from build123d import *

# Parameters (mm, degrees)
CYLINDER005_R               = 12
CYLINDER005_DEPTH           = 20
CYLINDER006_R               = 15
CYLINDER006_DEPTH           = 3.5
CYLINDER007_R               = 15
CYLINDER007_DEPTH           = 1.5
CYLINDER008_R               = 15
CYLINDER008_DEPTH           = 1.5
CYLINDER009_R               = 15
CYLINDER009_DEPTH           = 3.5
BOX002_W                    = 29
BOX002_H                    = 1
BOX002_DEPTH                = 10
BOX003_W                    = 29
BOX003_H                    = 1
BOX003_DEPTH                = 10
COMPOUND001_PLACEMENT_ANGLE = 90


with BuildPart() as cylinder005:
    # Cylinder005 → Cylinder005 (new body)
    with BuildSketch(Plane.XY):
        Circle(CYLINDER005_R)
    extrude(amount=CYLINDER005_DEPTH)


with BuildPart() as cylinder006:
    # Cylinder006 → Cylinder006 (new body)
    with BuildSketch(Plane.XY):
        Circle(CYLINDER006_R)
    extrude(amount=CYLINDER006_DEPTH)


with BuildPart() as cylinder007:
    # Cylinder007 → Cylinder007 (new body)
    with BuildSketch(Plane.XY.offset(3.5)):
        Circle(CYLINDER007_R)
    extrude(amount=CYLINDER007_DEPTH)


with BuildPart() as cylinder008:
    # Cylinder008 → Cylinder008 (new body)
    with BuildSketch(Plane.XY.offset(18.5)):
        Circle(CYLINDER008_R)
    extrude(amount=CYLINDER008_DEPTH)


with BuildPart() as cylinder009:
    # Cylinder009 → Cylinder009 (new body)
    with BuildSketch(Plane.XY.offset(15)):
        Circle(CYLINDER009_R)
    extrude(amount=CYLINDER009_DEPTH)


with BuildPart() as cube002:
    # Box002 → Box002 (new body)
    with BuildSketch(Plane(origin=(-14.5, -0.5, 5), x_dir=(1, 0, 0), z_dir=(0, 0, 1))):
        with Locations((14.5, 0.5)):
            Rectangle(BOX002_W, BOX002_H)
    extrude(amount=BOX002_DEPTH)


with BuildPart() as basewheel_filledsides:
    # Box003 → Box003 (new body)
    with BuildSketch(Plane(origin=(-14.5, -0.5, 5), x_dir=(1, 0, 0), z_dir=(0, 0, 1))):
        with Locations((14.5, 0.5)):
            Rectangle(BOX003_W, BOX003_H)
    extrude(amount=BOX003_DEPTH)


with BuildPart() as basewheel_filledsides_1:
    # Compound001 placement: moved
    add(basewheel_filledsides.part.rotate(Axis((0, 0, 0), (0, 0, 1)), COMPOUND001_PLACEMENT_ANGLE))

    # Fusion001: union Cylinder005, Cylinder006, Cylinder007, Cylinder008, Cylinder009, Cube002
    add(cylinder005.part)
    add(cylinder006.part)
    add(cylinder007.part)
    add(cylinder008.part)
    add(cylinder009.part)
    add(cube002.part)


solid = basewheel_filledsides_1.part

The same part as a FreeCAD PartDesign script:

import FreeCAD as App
import Part
import Sketcher

doc = App.newDocument("Part")
body = doc.addObject("PartDesign::Body", "Body")

sketch1 = doc.addObject("Sketcher::SketchObject", "Sketch")
body.addObject(sketch1)
sketch1.AttachmentSupport = (doc.XY_Plane, [""])
sketch1.MapMode = "FlatFace"
sketch1.addGeometry(Part.Circle(App.Vector(0, 0, 0), App.Vector(0, 0, 1), 12), False)
sketch1.addConstraint([
    Sketcher.Constraint("Coincident", 0, 3, -1, 1),
    Sketcher.Constraint("Diameter", 0, 24.0),
])
pad1 = doc.addObject("PartDesign::Pad", "Pad")
body.addObject(pad1)
pad1.Profile = sketch1
pad1.Length = 20
body2 = doc.addObject("PartDesign::Body", "Body001")

sketch2 = doc.addObject("Sketcher::SketchObject", "Sketch001")
body2.addObject(sketch2)
sketch2.AttachmentSupport = (doc.getObject("XY_Plane001"), [""])
sketch2.MapMode = "FlatFace"
sketch2.addGeometry(Part.Circle(App.Vector(0, 0, 0), App.Vector(0, 0, 1), 15), False)
sketch2.addConstraint([
    Sketcher.Constraint("Coincident", 0, 3, -1, 1),
    Sketcher.Constraint("Diameter", 0, 30.0),
])
pad2 = doc.addObject("PartDesign::Pad", "Pad001")
body2.addObject(pad2)
pad2.Profile = sketch2
pad2.Length = 3.5
body3 = doc.addObject("PartDesign::Body", "Body002")

sketch3 = doc.addObject("Sketcher::SketchObject", "Sketch002")
body3.addObject(sketch3)
sketch3.AttachmentSupport = (doc.getObject("XY_Plane002"), [""])
sketch3.MapMode = "FlatFace"
sketch3.AttachmentOffset = App.Placement(App.Vector(0, 0, 3.5), App.Rotation())
sketch3.addGeometry(Part.Circle(App.Vector(0, 0, 0), App.Vector(0, 0, 1), 15), False)
sketch3.addConstraint([
    Sketcher.Constraint("Coincident", 0, 3, -1, 1),
    Sketcher.Constraint("Diameter", 0, 30.0),
])
pad3 = doc.addObject("PartDesign::Pad", "Pad002")
body3.addObject(pad3)
pad3.Profile = sketch3
pad3.Length = 1.5
body4 = doc.addObject("PartDesign::Body", "Body003")

sketch4 = doc.addObject("Sketcher::SketchObject", "Sketch003")
body4.addObject(sketch4)
sketch4.AttachmentSupport = (doc.getObject("XY_Plane003"), [""])
sketch4.MapMode = "FlatFace"
sketch4.AttachmentOffset = App.Placement(App.Vector(0, 0, 18.5), App.Rotation())
sketch4.addGeometry(Part.Circle(App.Vector(0, 0, 0), App.Vector(0, 0, 1), 15), False)
sketch4.addConstraint([
    Sketcher.Constraint("Coincident", 0, 3, -1, 1),
    Sketcher.Constraint("Diameter", 0, 30.0),
])
pad4 = doc.addObject("PartDesign::Pad", "Pad003")
body4.addObject(pad4)
pad4.Profile = sketch4
pad4.Length = 1.5
body5 = doc.addObject("PartDesign::Body", "Body004")

sketch5 = doc.addObject("Sketcher::SketchObject", "Sketch004")
body5.addObject(sketch5)
sketch5.AttachmentSupport = (doc.getObject("XY_Plane004"), [""])
sketch5.MapMode = "FlatFace"
sketch5.AttachmentOffset = App.Placement(App.Vector(0, 0, 15), App.Rotation())
sketch5.addGeometry(Part.Circle(App.Vector(0, 0, 0), App.Vector(0, 0, 1), 15), False)
sketch5.addConstraint([
    Sketcher.Constraint("Coincident", 0, 3, -1, 1),
    Sketcher.Constraint("Diameter", 0, 30.0),
])
pad5 = doc.addObject("PartDesign::Pad", "Pad004")
body5.addObject(pad5)
pad5.Profile = sketch5
pad5.Length = 3.5
body6 = doc.addObject("PartDesign::Body", "Body005")

sketch6 = doc.addObject("Sketcher::SketchObject", "Sketch005")
body6.addObject(sketch6)
sketch6.AttachmentSupport = (doc.getObject("XY_Plane005"), [""])
sketch6.MapMode = "FlatFace"
sketch6.AttachmentOffset = App.Placement(App.Vector(0, 0, 5), App.Rotation())
sketch6.addGeometry([
    Part.LineSegment(App.Vector(-14.5, 0.5, 0), App.Vector(-14.5, -0.5, 0)),
    Part.LineSegment(App.Vector(-14.5, -0.5, 0), App.Vector(14.5, -0.5, 0)),
    Part.LineSegment(App.Vector(14.5, -0.5, 0), App.Vector(14.5, 0.5, 0)),
    Part.LineSegment(App.Vector(14.5, 0.5, 0), App.Vector(-14.5, 0.5, 0)),
], False)
sketch6.addConstraint([
    Sketcher.Constraint("Coincident", 0, 2, 1, 1),
    Sketcher.Constraint("Coincident", 1, 2, 2, 1),
    Sketcher.Constraint("Coincident", 2, 2, 3, 1),
    Sketcher.Constraint("Coincident", 3, 2, 0, 1),
    Sketcher.Constraint("Vertical", 0),
    Sketcher.Constraint("Horizontal", 1),
    Sketcher.Constraint("Vertical", 2),
    Sketcher.Constraint("Horizontal", 3),
    Sketcher.Constraint("Symmetric", 0, 2, 2, 2, -1, 1),
    Sketcher.Constraint("DistanceX", 1, 1, 1, 2, 29.0),
    Sketcher.Constraint("DistanceY", 0, 2, 0, 1, 1.0),
])
pad6 = doc.addObject("PartDesign::Pad", "Pad005")
body6.addObject(pad6)
pad6.Profile = sketch6
pad6.Length = 10
body7 = doc.addObject("PartDesign::Body", "Body006")

sketch7 = doc.addObject("Sketcher::SketchObject", "Sketch006")
body7.addObject(sketch7)
sketch7.AttachmentSupport = (doc.getObject("XY_Plane006"), [""])
sketch7.MapMode = "FlatFace"
sketch7.AttachmentOffset = App.Placement(App.Vector(0, 0, 5), App.Rotation())
sketch7.addGeometry([
    Part.LineSegment(App.Vector(-14.5, 0.5, 0), App.Vector(-14.5, -0.5, 0)),
    Part.LineSegment(App.Vector(-14.5, -0.5, 0), App.Vector(14.5, -0.5, 0)),
    Part.LineSegment(App.Vector(14.5, -0.5, 0), App.Vector(14.5, 0.5, 0)),
    Part.LineSegment(App.Vector(14.5, 0.5, 0), App.Vector(-14.5, 0.5, 0)),
], False)
sketch7.addConstraint([
    Sketcher.Constraint("Coincident", 0, 2, 1, 1),
    Sketcher.Constraint("Coincident", 1, 2, 2, 1),
    Sketcher.Constraint("Coincident", 2, 2, 3, 1),
    Sketcher.Constraint("Coincident", 3, 2, 0, 1),
    Sketcher.Constraint("Vertical", 0),
    Sketcher.Constraint("Horizontal", 1),
    Sketcher.Constraint("Vertical", 2),
    Sketcher.Constraint("Horizontal", 3),
    Sketcher.Constraint("Symmetric", 0, 2, 2, 2, -1, 1),
    Sketcher.Constraint("DistanceX", 1, 1, 1, 2, 29.0),
    Sketcher.Constraint("DistanceY", 0, 2, 0, 1, 1.0),
])
pad7 = doc.addObject("PartDesign::Pad", "Pad006")
body7.addObject(pad7)
pad7.Profile = sketch7
pad7.Length = 10
body8 = doc.addObject("PartDesign::Body", "Body007")
doc.recompute()

body7.Placement = App.Placement(App.Vector(0, 0, 0), App.Rotation(App.Vector(0, 0, 1), 90))
boolean = doc.addObject("PartDesign::Boolean", "Boolean")
body8.addObject(boolean)
boolean.Type = "Fuse"
boolean.addObjects([body7])
doc.recompute()

boolean2 = doc.addObject("PartDesign::Boolean", "Boolean001")
body8.addObject(boolean2)
boolean2.Type = "Fuse"
boolean2.addObjects([body])
doc.recompute()

boolean3 = doc.addObject("PartDesign::Boolean", "Boolean002")
body8.addObject(boolean3)
boolean3.Type = "Fuse"
boolean3.addObjects([body2])
doc.recompute()

boolean4 = doc.addObject("PartDesign::Boolean", "Boolean003")
body8.addObject(boolean4)
boolean4.Type = "Fuse"
boolean4.addObjects([body3])
doc.recompute()

boolean5 = doc.addObject("PartDesign::Boolean", "Boolean004")
body8.addObject(boolean5)
boolean5.Type = "Fuse"
boolean5.addObjects([body4])
doc.recompute()

boolean6 = doc.addObject("PartDesign::Boolean", "Boolean005")
body8.addObject(boolean6)
boolean6.Type = "Fuse"
boolean6.addObjects([body5])
doc.recompute()

boolean7 = doc.addObject("PartDesign::Boolean", "Boolean006")
body8.addObject(boolean7)
boolean7.Type = "Fuse"
boolean7.addObjects([body6])

doc.recompute()
